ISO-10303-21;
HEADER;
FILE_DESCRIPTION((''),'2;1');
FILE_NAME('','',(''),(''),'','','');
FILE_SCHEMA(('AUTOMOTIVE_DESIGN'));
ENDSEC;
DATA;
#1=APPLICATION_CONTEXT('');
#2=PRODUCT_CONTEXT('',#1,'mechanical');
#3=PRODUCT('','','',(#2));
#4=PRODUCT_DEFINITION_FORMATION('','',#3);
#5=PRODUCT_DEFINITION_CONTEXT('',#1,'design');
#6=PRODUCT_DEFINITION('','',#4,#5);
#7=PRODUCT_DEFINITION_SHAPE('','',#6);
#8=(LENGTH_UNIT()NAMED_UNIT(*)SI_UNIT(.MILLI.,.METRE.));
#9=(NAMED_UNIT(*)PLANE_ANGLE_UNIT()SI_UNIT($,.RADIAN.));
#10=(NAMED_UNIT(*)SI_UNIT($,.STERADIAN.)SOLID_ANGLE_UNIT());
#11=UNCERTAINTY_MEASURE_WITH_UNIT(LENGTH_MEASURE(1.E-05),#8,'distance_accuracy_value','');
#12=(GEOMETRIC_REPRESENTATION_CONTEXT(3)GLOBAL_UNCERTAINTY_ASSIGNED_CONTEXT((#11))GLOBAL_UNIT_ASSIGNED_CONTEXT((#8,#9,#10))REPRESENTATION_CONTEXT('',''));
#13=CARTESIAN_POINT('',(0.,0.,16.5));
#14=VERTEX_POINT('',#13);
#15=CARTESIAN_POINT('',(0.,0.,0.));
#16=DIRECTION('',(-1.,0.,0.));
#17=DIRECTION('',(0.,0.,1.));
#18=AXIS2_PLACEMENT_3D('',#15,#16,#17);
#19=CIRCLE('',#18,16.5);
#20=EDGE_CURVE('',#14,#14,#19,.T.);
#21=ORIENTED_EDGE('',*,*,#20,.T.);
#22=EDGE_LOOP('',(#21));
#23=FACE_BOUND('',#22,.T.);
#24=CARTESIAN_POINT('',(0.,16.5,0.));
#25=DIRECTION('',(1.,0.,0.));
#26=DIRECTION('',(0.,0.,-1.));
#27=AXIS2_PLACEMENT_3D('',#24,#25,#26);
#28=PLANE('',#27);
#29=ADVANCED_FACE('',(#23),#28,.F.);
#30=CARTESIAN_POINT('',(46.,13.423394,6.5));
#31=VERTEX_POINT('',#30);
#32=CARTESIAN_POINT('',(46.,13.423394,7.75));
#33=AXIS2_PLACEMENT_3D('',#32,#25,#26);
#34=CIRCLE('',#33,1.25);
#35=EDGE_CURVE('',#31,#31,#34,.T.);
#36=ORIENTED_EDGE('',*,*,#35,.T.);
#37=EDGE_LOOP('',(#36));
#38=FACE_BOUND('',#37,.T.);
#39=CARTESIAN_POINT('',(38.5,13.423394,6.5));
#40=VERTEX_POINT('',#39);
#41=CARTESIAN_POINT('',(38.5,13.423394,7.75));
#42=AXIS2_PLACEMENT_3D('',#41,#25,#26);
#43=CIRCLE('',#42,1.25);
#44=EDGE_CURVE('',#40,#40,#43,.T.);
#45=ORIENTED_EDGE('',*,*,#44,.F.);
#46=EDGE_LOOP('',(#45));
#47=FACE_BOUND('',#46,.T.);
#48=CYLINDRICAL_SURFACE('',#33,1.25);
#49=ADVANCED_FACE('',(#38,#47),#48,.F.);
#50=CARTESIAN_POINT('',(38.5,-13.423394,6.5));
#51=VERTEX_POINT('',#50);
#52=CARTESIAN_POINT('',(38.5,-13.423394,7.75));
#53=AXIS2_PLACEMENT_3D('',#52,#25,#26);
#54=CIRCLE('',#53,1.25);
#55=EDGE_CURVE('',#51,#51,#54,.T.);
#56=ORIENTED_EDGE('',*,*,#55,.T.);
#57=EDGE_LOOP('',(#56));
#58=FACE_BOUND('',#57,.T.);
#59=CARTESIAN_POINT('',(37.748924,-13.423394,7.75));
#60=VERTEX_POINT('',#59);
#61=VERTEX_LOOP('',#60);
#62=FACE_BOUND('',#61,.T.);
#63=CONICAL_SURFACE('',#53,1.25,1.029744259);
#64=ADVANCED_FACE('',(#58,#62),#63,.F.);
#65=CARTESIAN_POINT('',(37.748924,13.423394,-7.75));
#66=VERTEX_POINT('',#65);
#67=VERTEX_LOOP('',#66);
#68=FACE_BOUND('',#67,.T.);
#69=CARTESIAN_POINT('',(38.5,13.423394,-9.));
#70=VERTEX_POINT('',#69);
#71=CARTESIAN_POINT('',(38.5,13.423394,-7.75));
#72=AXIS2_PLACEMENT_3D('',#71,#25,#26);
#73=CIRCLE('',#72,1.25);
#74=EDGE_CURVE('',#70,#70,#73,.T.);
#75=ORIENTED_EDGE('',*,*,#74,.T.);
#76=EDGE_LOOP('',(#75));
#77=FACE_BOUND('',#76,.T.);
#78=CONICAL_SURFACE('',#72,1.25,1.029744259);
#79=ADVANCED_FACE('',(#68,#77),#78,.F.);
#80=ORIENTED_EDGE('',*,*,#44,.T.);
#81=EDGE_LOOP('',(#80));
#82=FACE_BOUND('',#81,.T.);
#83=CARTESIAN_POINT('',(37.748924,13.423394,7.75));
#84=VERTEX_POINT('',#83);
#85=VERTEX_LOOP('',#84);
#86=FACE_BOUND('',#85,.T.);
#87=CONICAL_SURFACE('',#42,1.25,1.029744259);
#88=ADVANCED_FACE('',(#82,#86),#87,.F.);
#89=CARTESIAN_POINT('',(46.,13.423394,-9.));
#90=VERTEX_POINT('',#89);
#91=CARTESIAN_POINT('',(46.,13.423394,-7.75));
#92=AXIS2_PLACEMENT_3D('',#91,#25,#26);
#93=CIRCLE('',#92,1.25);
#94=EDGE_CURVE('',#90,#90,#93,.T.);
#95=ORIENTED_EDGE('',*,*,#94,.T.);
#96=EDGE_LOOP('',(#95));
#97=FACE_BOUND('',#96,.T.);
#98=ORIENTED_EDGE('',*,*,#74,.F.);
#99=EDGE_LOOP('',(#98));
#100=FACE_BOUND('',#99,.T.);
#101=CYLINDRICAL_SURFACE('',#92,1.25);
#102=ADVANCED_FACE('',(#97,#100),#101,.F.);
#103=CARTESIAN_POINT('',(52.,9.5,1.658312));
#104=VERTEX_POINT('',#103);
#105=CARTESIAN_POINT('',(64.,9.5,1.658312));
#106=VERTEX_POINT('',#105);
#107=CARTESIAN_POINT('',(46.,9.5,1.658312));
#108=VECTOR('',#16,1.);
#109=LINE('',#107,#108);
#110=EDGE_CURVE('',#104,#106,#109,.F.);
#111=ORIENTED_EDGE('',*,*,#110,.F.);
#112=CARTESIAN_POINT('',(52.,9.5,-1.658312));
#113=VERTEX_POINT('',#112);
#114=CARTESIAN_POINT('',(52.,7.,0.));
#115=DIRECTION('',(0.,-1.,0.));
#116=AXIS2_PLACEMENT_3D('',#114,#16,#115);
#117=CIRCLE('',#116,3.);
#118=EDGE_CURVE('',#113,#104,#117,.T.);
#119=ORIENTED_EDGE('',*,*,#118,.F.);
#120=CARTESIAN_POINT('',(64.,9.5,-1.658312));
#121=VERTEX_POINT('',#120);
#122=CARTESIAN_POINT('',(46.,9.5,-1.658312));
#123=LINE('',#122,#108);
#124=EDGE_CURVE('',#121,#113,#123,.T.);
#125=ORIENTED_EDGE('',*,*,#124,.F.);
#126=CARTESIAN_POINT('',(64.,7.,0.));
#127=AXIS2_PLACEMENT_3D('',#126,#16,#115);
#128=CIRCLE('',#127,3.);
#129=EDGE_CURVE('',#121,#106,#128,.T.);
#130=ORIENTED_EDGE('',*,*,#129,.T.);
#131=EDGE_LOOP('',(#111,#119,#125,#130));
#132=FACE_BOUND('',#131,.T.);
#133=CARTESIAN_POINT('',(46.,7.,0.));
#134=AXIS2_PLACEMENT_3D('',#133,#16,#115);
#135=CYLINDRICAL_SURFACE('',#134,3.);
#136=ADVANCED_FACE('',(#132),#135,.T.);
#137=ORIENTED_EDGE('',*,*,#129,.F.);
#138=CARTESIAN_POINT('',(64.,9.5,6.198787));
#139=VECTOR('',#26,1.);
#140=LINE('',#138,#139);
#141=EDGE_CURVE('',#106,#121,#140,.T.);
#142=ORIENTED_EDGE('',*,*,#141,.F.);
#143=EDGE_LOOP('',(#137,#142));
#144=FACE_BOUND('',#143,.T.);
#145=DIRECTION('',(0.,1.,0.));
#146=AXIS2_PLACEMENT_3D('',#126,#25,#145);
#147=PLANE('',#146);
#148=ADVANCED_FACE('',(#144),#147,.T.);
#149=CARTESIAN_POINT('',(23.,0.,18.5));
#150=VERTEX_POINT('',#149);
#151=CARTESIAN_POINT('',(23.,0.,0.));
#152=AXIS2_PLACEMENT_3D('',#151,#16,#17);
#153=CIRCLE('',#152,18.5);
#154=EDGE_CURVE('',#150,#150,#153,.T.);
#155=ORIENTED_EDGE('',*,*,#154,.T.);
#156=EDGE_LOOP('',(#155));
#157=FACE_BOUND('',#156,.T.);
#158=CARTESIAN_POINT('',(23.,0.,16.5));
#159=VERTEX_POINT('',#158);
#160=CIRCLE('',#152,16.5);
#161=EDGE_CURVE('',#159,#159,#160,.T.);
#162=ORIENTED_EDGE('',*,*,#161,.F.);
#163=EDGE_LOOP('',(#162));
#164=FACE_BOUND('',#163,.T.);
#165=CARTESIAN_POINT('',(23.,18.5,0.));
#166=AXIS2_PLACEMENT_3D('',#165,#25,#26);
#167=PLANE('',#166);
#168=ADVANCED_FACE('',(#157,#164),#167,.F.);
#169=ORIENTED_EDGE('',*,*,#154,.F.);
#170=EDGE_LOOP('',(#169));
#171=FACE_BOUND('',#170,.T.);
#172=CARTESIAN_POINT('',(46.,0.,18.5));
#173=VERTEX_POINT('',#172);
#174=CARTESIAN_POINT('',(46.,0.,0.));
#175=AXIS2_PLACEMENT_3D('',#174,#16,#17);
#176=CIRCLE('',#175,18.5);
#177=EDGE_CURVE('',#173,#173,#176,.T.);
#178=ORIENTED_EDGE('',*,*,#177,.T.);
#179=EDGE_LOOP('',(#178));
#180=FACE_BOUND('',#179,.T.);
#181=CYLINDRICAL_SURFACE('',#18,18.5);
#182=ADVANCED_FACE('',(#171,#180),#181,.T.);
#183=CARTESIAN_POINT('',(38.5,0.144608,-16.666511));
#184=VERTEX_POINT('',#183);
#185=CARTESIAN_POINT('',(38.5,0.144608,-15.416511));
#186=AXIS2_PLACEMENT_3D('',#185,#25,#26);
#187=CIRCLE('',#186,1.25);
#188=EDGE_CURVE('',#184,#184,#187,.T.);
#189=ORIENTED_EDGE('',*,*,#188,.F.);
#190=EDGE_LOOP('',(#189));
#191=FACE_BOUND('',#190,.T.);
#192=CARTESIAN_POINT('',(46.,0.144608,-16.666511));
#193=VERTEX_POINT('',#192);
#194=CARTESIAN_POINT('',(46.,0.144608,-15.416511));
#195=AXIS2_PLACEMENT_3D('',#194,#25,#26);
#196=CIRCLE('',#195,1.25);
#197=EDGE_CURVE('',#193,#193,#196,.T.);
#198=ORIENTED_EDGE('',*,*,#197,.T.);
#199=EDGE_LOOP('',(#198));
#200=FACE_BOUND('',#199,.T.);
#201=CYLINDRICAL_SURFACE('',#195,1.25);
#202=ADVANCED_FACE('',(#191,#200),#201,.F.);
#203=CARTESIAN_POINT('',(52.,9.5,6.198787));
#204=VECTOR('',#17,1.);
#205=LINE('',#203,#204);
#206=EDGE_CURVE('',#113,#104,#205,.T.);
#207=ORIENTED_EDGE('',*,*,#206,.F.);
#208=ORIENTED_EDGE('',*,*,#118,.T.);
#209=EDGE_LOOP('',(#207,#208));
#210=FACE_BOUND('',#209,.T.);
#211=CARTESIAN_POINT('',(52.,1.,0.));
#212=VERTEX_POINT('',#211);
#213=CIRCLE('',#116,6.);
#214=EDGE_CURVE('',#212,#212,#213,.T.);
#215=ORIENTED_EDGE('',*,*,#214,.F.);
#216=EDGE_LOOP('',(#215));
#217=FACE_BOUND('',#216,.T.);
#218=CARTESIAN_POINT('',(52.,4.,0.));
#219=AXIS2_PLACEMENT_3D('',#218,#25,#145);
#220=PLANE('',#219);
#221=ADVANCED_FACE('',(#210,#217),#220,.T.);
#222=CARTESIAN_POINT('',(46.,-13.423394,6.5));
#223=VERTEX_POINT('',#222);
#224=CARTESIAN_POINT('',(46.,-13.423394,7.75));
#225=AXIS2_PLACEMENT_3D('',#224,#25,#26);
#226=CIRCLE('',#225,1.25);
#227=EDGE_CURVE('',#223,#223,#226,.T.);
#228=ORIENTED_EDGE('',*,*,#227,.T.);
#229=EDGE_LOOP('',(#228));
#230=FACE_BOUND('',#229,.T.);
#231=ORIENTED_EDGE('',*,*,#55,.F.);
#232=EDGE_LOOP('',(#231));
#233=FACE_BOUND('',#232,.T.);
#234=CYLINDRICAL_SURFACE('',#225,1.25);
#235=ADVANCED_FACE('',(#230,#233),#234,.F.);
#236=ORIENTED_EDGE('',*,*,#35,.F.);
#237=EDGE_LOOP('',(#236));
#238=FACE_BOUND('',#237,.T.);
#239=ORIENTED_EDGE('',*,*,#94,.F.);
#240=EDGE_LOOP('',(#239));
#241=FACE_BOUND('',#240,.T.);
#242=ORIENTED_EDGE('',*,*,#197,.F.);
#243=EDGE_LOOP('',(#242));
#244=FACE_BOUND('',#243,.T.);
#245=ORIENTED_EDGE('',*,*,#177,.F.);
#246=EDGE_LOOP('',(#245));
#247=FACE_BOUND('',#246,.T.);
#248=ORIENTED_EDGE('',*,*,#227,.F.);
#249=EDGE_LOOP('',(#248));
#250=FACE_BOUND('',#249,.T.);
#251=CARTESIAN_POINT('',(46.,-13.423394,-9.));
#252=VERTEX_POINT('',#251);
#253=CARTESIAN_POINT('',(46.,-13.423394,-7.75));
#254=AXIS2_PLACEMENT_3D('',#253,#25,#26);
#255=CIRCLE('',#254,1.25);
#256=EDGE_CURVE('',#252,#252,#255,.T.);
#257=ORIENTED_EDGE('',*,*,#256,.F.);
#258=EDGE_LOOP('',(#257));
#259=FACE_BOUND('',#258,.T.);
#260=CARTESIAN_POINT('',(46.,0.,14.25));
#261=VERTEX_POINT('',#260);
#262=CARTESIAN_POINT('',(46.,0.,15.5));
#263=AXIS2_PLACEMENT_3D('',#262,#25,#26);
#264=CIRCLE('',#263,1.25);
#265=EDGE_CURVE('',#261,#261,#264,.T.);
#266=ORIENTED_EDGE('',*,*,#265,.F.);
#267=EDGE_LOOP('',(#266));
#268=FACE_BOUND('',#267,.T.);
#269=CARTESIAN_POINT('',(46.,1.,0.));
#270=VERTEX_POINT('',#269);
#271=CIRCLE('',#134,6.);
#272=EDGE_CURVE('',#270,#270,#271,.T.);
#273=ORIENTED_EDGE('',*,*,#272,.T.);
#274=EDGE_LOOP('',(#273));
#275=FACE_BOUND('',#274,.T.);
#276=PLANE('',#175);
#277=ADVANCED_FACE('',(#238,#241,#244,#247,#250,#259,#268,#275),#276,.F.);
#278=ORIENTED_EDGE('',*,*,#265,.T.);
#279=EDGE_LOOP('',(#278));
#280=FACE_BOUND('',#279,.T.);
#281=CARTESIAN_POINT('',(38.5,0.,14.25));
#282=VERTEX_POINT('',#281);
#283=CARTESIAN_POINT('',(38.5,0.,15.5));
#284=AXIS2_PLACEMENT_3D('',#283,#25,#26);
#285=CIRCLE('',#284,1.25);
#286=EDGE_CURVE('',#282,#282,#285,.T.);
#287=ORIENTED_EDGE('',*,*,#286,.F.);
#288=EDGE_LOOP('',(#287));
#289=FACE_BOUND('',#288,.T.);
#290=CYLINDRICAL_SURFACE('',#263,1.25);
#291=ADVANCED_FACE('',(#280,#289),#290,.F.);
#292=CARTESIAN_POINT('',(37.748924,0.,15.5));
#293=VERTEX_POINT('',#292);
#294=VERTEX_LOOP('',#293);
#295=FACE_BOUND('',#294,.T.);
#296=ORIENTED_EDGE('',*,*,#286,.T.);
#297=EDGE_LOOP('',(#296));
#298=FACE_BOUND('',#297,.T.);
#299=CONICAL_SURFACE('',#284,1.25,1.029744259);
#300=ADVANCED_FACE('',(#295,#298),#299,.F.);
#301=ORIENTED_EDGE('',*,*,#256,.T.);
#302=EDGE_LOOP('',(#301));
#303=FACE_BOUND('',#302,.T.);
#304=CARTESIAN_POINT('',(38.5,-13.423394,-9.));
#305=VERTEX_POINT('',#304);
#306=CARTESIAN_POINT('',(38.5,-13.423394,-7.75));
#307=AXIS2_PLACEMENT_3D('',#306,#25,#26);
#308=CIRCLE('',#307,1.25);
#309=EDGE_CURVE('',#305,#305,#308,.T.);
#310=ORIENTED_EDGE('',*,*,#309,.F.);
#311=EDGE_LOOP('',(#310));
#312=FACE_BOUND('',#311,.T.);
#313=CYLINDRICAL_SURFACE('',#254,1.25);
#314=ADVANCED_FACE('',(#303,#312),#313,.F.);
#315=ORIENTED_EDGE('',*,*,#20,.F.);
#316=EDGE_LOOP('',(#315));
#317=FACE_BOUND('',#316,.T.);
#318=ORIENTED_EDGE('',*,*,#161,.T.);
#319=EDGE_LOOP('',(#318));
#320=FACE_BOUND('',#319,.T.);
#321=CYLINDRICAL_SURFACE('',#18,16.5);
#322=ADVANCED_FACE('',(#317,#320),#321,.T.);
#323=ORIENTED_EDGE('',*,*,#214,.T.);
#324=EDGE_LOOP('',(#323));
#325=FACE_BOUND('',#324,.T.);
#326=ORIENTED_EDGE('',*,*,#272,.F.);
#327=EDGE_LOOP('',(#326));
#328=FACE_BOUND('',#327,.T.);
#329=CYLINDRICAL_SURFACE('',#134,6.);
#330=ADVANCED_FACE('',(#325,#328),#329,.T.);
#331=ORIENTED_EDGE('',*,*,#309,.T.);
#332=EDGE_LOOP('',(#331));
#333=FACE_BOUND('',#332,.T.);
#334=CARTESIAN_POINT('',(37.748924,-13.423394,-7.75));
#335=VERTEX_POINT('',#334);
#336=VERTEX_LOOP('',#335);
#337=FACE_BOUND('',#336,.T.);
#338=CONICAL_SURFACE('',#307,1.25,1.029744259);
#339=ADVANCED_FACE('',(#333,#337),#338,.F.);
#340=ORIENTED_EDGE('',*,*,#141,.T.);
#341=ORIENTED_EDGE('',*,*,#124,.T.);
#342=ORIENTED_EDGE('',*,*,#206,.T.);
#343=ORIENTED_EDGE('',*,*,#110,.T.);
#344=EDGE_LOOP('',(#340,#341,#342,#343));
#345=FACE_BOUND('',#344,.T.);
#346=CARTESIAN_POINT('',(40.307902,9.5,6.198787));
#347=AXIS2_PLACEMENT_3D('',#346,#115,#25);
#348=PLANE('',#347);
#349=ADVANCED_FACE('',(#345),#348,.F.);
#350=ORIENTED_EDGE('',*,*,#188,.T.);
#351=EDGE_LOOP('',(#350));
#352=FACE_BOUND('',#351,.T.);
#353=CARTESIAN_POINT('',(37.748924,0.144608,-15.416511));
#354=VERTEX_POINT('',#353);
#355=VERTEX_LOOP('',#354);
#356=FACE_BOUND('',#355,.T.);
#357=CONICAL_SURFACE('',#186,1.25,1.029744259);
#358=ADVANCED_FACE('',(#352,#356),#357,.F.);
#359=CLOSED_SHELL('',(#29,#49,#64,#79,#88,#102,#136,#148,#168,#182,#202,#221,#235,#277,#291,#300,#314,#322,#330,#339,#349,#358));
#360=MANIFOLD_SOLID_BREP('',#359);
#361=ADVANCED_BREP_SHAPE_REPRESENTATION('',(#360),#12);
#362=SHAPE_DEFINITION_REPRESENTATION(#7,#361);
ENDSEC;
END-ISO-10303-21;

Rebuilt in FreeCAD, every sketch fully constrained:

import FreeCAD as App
import Part
import Sketcher

V = App.Vector

doc = App.newDocument("Part")
body = doc.addObject("PartDesign::Body", "Body")

# Sketch on XY plane
sketch1 = body.newObject("Sketcher::SketchObject", "Sketch")
sketch1.AttachmentSupport = (doc.getObject("XY_Plane"), [""])
sketch1.MapMode = "FlatFace"
sketch1.addGeometry([
    Part.LineSegment(V(0, 0, 0), V(46, 0, 0)),  # 0
    Part.LineSegment(V(46, 0, 0), V(46, 18.5, 0)),  # 1
    Part.LineSegment(V(46, 18.5, 0), V(23, 18.5, 0)),  # 2
    Part.LineSegment(V(23, 18.5, 0), V(23, 16.5, 0)),  # 3
    Part.LineSegment(V(23, 16.5, 0), V(0, 16.5, 0)),  # 4
    Part.LineSegment(V(0, 16.5, 0), V(0, 0, 0)),  # 5
], False)
sketch1.addConstraint([
    Sketcher.Constraint("Coincident", 0, 2, 1, 1),
    Sketcher.Constraint("Coincident", 1, 2, 2, 1),
    Sketcher.Constraint("Coincident", 2, 2, 3, 1),
    Sketcher.Constraint("Coincident", 3, 2, 4, 1),
    Sketcher.Constraint("Coincident", 4, 2, 5, 1),
    Sketcher.Constraint("Coincident", 5, 2, 0, 1),
    Sketcher.Constraint("Horizontal", 0),
    Sketcher.Constraint("Vertical", 1),
    Sketcher.Constraint("Horizontal", 2),
    Sketcher.Constraint("Vertical", 3),
    Sketcher.Constraint("Horizontal", 4),
    Sketcher.Constraint("Vertical", 5),
    Sketcher.Constraint("Coincident", 5, 2, -1, 1),
    Sketcher.Constraint("Equal", 2, 4),
    Sketcher.Constraint("DistanceX", 0, 1, 0, 2, 46.0),
    Sketcher.Constraint("DistanceY", 3, 2, 3, 1, 2.0),
    Sketcher.Constraint("DistanceY", 1, 1, 1, 2, 18.5),
])
revolution = body.newObject("PartDesign::Revolution", "Revolution")
revolution.Profile = sketch1
revolution.ReferenceAxis = (sketch1, ["H_Axis"])
revolution.Angle = 360

# Sketch on XY plane
sketch2 = body.newObject("Sketcher::SketchObject", "Sketch001")
sketch2.AttachmentSupport = (doc.getObject("XY_Plane"), [""])
sketch2.MapMode = "FlatFace"
sketch2.addGeometry([
    Part.LineSegment(V(64, 7, 0), V(46, 7, 0)),  # 0
    Part.LineSegment(V(46, 7, 0), V(46, 1, 0)),  # 1
    Part.LineSegment(V(46, 1, 0), V(52, 1, 0)),  # 2
    Part.LineSegment(V(52, 1, 0), V(52, 4, 0)),  # 3
    Part.LineSegment(V(52, 4, 0), V(64, 4, 0)),  # 4
    Part.LineSegment(V(64, 4, 0), V(64, 7, 0)),  # 5
], False)
sketch2.addGeometry(Part.LineSegment(V(46, 7, 0), V(64, 7, 0)), True)  # axis
sketch2.addConstraint([
    Sketcher.Constraint("Coincident", 0, 2, 1, 1),
    Sketcher.Constraint("Coincident", 1, 2, 2, 1),
    Sketcher.Constraint("Coincident", 2, 2, 3, 1),
    Sketcher.Constraint("Coincident", 3, 2, 4, 1),
    Sketcher.Constraint("Coincident", 4, 2, 5, 1),
    Sketcher.Constraint("Coincident", 5, 2, 0, 1),
    Sketcher.Constraint("Horizontal", 0),
    Sketcher.Constraint("Vertical", 1),
    Sketcher.Constraint("Horizontal", 2),
    Sketcher.Constraint("Vertical", 3),
    Sketcher.Constraint("Horizontal", 4),
    Sketcher.Constraint("Vertical", 5),
    Sketcher.Constraint("Horizontal", 6),
    Sketcher.Constraint("Coincident", 6, 1, 0, 2),
    Sketcher.Constraint("Vertical", 4, 2, 6, 2),
    Sketcher.Constraint("Equal", 2, 1),
    Sketcher.Constraint("Equal", 3, 5),
    Sketcher.Constraint("DistanceX", 0, 2, 0, 1, 18.0),
    Sketcher.Constraint("DistanceX", 2, 1, 2, 2, 6.0),
    Sketcher.Constraint("DistanceX", -1, 1, 0, 2, 46.0),
    Sketcher.Constraint("DistanceY", -1, 1, 0, 2, 7.0),
])
revolution2 = body.newObject("PartDesign::Revolution", "Revolution001")
revolution2.Profile = sketch2
revolution2.ReferenceAxis = (sketch2, ["Axis0"])
revolution2.Angle = 360

# Sketch on YZ plane
sketch3 = body.newObject("Sketcher::SketchObject", "Sketch002")
sketch3.AttachmentSupport = (doc.getObject("YZ_Plane"), [""])
sketch3.MapMode = "FlatFace"
sketch3.AttachmentOffset = App.Placement(V(0, 0, 64), App.Rotation())
sketch3.addGeometry([
    Part.LineSegment(V(10.5, 6.2, 0), V(9.5, 6.2, 0)),
    Part.LineSegment(V(9.5, 6.2, 0), V(9.5, -5.5, 0)),
    Part.LineSegment(V(9.5, -5.5, 0), V(10.5, -5.5, 0)),
    Part.LineSegment(V(10.5, -5.5, 0), V(10.5, 6.2, 0)),
], False)
sketch3.addConstraint([
    Sketcher.Constraint("Coincident", 0, 2, 1, 1),
    Sketcher.Constraint("Coincident", 1, 2, 2, 1),
    Sketcher.Constraint("Coincident", 2, 2, 3, 1),
    Sketcher.Constraint("Coincident", 3, 2, 0, 1),
    Sketcher.Constraint("Horizontal", 0),
    Sketcher.Constraint("Vertical", 1),
    Sketcher.Constraint("Horizontal", 2),
    Sketcher.Constraint("Vertical", 3),
    Sketcher.Constraint("DistanceX", -1, 1, 0, 2, 9.5),
    Sketcher.Constraint("DistanceX", 0, 2, 0, 1, 0.953639),
    Sketcher.Constraint("DistanceY", 1, 2, 1, 1, 11.653143),
    Sketcher.Constraint("DistanceY", -1, 1, 0, 2, 6.198787),
])
pocket1 = body.newObject("PartDesign::Pocket", "Pocket")
pocket1.Profile = sketch3
pocket1.Length = 12

# Sketch on YZ plane
sketch4 = body.newObject("Sketcher::SketchObject", "Sketch003")
sketch4.AttachmentSupport = (doc.getObject("YZ_Plane"), [""])
sketch4.MapMode = "FlatFace"
sketch4.AttachmentOffset = App.Placement(V(0, 0, 46), App.Rotation())
sketch4.addGeometry([
    Part.Circle(V(13.4, 7.8, 0), V(0, 0, 1), 1.2),  # 0
    Part.Circle(V(13.4, -7.8, 0), V(0, 0, 1), 1.2),  # 1
    Part.Circle(V(0.1, -15.4, 0), V(0, 0, 1), 1.2),  # 2
    Part.Circle(V(-13.4, -7.8, 0), V(0, 0, 1), 1.2),  # 3
    Part.Circle(V(-13.4, 7.8, 0), V(0, 0, 1), 1.2),  # 4
    Part.Circle(V(0, 15.5, 0), V(0, 0, 1), 1.2),  # 5
], False)
sketch4.addConstraint([
    Sketcher.Constraint("Equal", 0, 1),
    Sketcher.Constraint("Equal", 1, 2),
    Sketcher.Constraint("Equal", 2, 3),
    Sketcher.Constraint("Equal", 3, 4),
    Sketcher.Constraint("Equal", 4, 5),
    Sketcher.Constraint("Symmetric", 0, 3, 3, 3, -1, 1),
    Sketcher.Constraint("Symmetric", 1, 3, 4, 3, -1, 1),
    Sketcher.Constraint("Symmetric", 1, 3, 3, 3, -2),
    Sketcher.Constraint("PointOnObject", 5, 3, -2),
    Sketcher.Constraint("Diameter", 0, 2.5),
    Sketcher.Constraint("DistanceY", -1, 1, 5, 3, 15.5),
    Sketcher.Constraint("DistanceY", 1, 3, 0, 3, 15.5),
    Sketcher.Constraint("DistanceX", 3, 3, 2, 3, 13.568001),
    Sketcher.Constraint("DistanceY", 2, 3, -1, 1, 15.416511),
    Sketcher.Constraint("DistanceX", -1, 1, 0, 3, 13.423394),
])
doc.recompute()
hole = body.newObject("PartDesign::Hole", "Hole")
hole.Profile = sketch4
hole.ThreadType = "None"
hole.Diameter = 2.5
hole.DepthType = "Dimension"
hole.Depth = 7.5
hole.DrillPoint = "Angled"
hole.DrillPointAngle = 118

doc.recompute()
